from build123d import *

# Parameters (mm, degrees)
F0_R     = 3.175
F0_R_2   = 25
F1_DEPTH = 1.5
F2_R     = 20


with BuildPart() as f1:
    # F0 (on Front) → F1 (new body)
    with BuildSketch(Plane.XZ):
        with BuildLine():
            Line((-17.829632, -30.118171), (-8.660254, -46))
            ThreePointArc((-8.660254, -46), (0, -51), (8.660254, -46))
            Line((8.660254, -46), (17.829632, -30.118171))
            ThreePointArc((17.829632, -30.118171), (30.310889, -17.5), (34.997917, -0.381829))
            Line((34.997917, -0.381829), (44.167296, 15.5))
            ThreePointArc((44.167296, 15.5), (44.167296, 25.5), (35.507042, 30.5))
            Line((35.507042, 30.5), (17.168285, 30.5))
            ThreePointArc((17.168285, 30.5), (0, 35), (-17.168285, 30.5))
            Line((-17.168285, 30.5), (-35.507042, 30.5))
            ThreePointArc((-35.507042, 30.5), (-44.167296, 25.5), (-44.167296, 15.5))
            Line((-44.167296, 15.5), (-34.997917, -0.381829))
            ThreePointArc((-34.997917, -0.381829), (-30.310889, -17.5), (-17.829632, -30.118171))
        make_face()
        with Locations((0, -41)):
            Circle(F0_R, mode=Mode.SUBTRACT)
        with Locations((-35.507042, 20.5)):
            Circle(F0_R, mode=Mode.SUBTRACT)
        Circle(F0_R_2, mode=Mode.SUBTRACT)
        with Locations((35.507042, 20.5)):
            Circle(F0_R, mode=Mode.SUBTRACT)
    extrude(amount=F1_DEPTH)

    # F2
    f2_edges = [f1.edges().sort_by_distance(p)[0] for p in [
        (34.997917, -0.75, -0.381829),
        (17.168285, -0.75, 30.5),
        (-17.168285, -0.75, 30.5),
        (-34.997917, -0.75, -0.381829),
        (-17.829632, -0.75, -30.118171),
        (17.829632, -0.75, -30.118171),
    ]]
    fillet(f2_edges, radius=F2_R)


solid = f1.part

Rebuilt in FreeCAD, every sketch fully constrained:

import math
import FreeCAD as App
import Part
import Sketcher

V = App.Vector
Q = App.Units.Quantity


def edges_at(feature, points):
    """Names of the edges that pass closest to the given points."""
    edges = feature.Shape.Edges
    near = lambda p: min(range(len(edges)), key=lambda i: edges[i].distToShape(Part.Vertex(*p))[0])
    return sorted({f"Edge{near(p) + 1}" for p in points})

doc = App.newDocument("Part")
body = doc.addObject("PartDesign::Body", "Body")

sketch1 = body.newObject("Sketcher::SketchObject", "Sketch")
sketch1.AttachmentSupport = (doc.getObject("XZ_Plane"), [""])
sketch1.MapMode = "FlatFace"
sketch1.addGeometry([
    Part.LineSegment(V(-17.8, -30.1, 0), V(-8.7, -46, 0)),
    Part.ArcOfCircle(Part.Circle(V(0, -41, 0), V(0, 0, 1), 10), math.radians(-150), math.radians(-30)),
    Part.LineSegment(V(8.7, -46, 0), V(17.8, -30.1, 0)),
    Part.ArcOfCircle(Part.Circle(V(0, 0, 0), V(0, 0, 1), 35), math.radians(-59), math.radians(-1)),
    Part.LineSegment(V(35, -0.4, 0), V(44.2, 15.5, 0)),
    Part.ArcOfCircle(Part.Circle(V(35.5, 20.5, 0), V(0, 0, 1), 10), math.radians(-30), math.radians(90)),
    Part.LineSegment(V(35.5, 30.5, 0), V(17.2, 30.5, 0)),
    Part.ArcOfCircle(Part.Circle(V(0, 0, 0), V(0, 0, 1), 35), math.radians(61), math.radians(119)),
    Part.LineSegment(V(-17.2, 30.5, 0), V(-35.5, 30.5, 0)),
    Part.ArcOfCircle(Part.Circle(V(-35.5, 20.5, 0), V(0, 0, 1), 10), math.radians(90), math.radians(210)),
    Part.LineSegment(V(-44.2, 15.5, 0), V(-35, -0.4, 0)),
    Part.ArcOfCircle(Part.Circle(V(0, 0, 0), V(0, 0, 1), 35), math.radians(-179), math.radians(-121)),
    Part.Circle(V(0, -41, 0), V(0, 0, 1), 3.2),
    Part.Circle(V(0, 0, 0), V(0, 0, 1), 25),
    Part.Circle(V(-35.5, 20.5, 0), V(0, 0, 1), 3.2),
    Part.Circle(V(35.5, 20.5, 0), V(0, 0, 1), 3.2),
], False)
sketch1.addConstraint([
    Sketcher.Constraint("Tangent", 0, 2, 1, 1),
    Sketcher.Constraint("Tangent", 1, 2, 2, 1),
    Sketcher.Constraint("Coincident", 2, 2, 3, 1),
    Sketcher.Constraint("Coincident", 3, 2, 4, 1),
    Sketcher.Constraint("Tangent", 4, 2, 5, 1),
    Sketcher.Constraint("Tangent", 5, 2, 6, 1),
    Sketcher.Constraint("Coincident", 6, 2, 7, 1),
    Sketcher.Constraint("Coincident", 7, 2, 8, 1),
    Sketcher.Constraint("Tangent", 8, 2, 9, 1),
    Sketcher.Constraint("Tangent", 9, 2, 10, 1),
    Sketcher.Constraint("Coincident", 10, 2, 11, 1),
    Sketcher.Constraint("Coincident", 11, 2, 0, 1),
    Sketcher.Constraint("Horizontal", 6),
    Sketcher.Constraint("Horizontal", 8),
    Sketcher.Constraint("Coincident", 3, 3, -1, 1),
    Sketcher.Constraint("Coincident", 7, 3, -1, 1),
    Sketcher.Constraint("Coincident", 11, 3, -1, 1),
    Sketcher.Constraint("Coincident", 13, 3, -1, 1),
    Sketcher.Constraint("Coincident", 12, 3, 1, 3),
    Sketcher.Constraint("Coincident", 14, 3, 9, 3),
    Sketcher.Constraint("Coincident", 15, 3, 5, 3),
    Sketcher.Constraint("Equal", 1, 5),
    Sketcher.Constraint("Equal", 3, 7),
    Sketcher.Constraint("Equal", 5, 9),
    Sketcher.Constraint("Equal", 7, 11),
    Sketcher.Constraint("Equal", 12, 14),
    Sketcher.Constraint("Equal", 14, 15),
    Sketcher.Constraint("Symmetric", 5, 3, 9, 3, -2),
    Sketcher.Constraint("Symmetric", 0, 2, 1, 2, -2),
    Sketcher.Constraint("Parallel", 2, 4),
    Sketcher.Constraint("Parallel", 0, 10),
    Sketcher.Constraint("Equal", 2, 4),
    Sketcher.Constraint("Diameter", 13, Q("50 mm")),
    Sketcher.Constraint("Radius", 1, Q("10 mm")),
    Sketcher.Constraint("Radius", 3, Q("35 mm")),
    Sketcher.Constraint("Diameter", 12, Q("6.35 mm")),
    Sketcher.Constraint("Angle", 0, Q("-60.000001 deg")),
    Sketcher.Constraint("DistanceY", 1, 3, -1, 1, Q("41 mm")),
    Sketcher.Constraint("DistanceY", -1, 1, 5, 3, Q("20.5 mm")),
])
pad1 = body.newObject("PartDesign::Pad", "Pad")
pad1.Profile = sketch1
pad1.Length = 1.5
doc.recompute()

fillet = body.newObject("PartDesign::Fillet", "Fillet")
fillet.Base = (pad1, edges_at(pad1, [
    (34.998, -0.75, -0.382),
    (17.168, -0.75, 30.5),
    (-17.168, -0.75, 30.5),
    (-34.998, -0.75, -0.382),
    (-17.83, -0.75, -30.118),
    (17.83, -0.75, -30.118),
]))
fillet.Radius = 20

doc.recompute()
